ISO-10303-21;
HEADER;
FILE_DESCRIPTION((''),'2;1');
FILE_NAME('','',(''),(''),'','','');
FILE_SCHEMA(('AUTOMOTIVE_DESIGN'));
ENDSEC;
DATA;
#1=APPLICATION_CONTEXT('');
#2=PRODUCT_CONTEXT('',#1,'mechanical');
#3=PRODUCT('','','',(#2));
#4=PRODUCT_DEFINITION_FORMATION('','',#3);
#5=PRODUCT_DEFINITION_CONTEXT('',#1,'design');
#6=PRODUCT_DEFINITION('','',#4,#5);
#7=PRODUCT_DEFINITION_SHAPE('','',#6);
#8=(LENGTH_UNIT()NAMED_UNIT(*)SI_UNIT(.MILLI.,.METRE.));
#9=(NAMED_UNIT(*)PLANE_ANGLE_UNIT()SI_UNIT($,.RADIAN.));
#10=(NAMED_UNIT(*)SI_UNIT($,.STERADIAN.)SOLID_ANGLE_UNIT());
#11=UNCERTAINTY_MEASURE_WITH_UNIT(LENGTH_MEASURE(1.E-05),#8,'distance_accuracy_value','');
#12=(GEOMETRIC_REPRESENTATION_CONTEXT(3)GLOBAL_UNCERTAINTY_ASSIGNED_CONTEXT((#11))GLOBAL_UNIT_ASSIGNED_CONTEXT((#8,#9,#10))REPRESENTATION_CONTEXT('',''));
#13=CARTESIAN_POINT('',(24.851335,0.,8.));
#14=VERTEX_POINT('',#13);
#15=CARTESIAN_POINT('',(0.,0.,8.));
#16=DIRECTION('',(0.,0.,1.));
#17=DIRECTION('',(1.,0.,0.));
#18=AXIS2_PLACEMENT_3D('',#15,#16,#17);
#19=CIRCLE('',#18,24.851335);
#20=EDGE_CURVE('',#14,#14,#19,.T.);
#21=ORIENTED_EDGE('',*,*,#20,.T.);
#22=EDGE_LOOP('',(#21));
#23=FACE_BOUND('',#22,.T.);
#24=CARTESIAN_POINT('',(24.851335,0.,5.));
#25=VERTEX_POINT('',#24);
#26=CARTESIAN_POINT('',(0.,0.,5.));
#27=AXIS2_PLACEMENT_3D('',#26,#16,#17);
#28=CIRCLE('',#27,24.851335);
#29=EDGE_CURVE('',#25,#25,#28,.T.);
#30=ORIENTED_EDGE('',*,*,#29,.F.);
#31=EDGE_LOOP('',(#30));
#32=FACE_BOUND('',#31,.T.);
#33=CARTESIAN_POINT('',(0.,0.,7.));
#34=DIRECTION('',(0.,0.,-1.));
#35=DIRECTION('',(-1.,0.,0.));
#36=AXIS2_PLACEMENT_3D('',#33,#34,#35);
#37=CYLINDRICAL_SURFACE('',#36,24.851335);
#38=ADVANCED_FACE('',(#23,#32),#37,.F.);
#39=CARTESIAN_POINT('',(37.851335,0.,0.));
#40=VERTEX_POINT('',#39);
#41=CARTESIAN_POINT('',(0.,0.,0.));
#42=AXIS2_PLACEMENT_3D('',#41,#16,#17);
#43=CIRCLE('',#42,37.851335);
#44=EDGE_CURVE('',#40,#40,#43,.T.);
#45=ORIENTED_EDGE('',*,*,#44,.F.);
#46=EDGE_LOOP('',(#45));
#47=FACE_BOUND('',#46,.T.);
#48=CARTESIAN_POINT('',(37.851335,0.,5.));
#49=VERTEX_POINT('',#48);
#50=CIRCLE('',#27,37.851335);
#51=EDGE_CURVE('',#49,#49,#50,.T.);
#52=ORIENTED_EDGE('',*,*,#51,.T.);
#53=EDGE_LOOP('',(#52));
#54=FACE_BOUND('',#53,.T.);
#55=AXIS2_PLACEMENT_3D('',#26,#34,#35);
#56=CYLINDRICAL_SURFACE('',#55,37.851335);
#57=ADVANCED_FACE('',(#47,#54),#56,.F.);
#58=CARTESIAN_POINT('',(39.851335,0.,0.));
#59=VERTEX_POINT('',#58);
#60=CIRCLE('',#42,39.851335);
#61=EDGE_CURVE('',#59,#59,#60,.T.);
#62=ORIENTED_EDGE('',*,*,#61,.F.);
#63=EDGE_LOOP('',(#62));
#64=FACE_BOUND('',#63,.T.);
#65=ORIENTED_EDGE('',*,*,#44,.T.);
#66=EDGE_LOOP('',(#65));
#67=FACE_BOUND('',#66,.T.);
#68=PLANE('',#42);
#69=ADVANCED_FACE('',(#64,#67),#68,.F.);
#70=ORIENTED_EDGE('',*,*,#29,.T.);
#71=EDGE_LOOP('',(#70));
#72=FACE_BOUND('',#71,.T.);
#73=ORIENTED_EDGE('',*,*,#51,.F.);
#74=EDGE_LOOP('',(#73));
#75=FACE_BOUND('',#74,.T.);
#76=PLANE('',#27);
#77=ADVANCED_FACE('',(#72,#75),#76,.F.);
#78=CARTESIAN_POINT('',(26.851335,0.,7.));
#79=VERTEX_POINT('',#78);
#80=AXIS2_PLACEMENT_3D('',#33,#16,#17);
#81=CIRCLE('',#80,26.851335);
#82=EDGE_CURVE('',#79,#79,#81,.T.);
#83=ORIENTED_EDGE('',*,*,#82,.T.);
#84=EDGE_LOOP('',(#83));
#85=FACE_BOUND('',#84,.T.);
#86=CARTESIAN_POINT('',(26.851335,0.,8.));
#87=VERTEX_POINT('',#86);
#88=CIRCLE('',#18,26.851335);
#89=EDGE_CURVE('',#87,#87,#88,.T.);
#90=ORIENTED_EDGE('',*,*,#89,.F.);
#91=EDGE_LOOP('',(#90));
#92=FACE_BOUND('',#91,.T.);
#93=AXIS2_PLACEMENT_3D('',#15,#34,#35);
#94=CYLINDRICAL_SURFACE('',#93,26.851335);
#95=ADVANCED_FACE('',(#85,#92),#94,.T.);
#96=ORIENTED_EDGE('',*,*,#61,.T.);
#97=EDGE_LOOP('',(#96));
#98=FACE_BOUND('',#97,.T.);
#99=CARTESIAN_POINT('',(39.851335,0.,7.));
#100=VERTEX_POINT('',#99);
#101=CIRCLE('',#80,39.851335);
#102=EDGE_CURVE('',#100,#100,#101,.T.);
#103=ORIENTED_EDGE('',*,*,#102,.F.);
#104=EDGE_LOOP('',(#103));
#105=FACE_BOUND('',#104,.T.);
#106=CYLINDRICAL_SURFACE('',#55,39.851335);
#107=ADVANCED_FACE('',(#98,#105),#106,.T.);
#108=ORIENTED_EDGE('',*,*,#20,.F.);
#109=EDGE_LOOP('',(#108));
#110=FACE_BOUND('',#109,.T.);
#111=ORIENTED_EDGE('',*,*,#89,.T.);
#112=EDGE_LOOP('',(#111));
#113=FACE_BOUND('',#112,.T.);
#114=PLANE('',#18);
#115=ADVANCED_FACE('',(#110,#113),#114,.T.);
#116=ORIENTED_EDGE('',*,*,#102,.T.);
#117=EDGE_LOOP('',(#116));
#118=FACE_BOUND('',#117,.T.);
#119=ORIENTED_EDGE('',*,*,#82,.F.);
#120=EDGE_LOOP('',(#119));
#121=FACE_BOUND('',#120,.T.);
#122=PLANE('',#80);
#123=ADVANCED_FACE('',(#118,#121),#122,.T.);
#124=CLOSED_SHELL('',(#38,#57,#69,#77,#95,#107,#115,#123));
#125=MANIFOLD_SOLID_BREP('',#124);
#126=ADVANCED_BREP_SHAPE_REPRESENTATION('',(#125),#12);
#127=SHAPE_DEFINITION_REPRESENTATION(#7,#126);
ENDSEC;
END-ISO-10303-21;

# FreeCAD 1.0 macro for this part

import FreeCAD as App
import Part
import Sketcher

V = App.Vector
Q = App.Units.Quantity

doc = App.newDocument("Part")
params = doc.addObject("Spreadsheet::Sheet", "Params")
for row, (alias, value) in enumerate([
    ("pad1_length", "5 mm"),
    ("pad2_length", "2 mm"),
    ("pad3_length", "1 mm"),
], start=1):
    params.set(f"A{row}", alias)
    params.set(f"B{row}", "=" + value)
    params.setAlias(f"B{row}", alias)

body = doc.addObject("PartDesign::Body", "Body")

# Sketch on XY plane
sketch1 = body.newObject("Sketcher::SketchObject", "Sketch")
sketch1.AttachmentSupport = (doc.getObject("XY_Plane"), [""])
sketch1.MapMode = "FlatFace"
sketch1.addGeometry([
    Part.Circle(V(0, 0, 0), V(0, 0, 1), 40),
    Part.Circle(V(0, 0, 0), V(0, 0, 1), 38),
], False)
sketch1.addConstraint([
    Sketcher.Constraint("Coincident", 0, 3, -1, 1),
    Sketcher.Constraint("Coincident", 1, 3, -1, 1),
    Sketcher.Constraint("Diameter", 0, Q("79.702671 mm")),
    Sketcher.Constraint("Diameter", 1, Q("75.702671 mm")),
])
pad1 = body.newObject("PartDesign::Pad", "Pad")
pad1.Profile = sketch1
pad1.setExpression("Length", "Params.pad1_length")

# Sketch on XY plane
sketch2 = body.newObject("Sketcher::SketchObject", "Sketch001")
sketch2.AttachmentSupport = (doc.getObject("XY_Plane"), [""])
sketch2.MapMode = "FlatFace"
sketch2.AttachmentOffset = App.Placement(V(0, 0, 5), App.Rotation())
sketch2.addGeometry([
    Part.Circle(V(0, 0, 0), V(0, 0, 1), 40),
    Part.Circle(V(0, 0, 0), V(0, 0, 1), 25),
], False)
sketch2.addConstraint([
    Sketcher.Constraint("Coincident", 0, 3, -1, 1),
    Sketcher.Constraint("Coincident", 1, 3, -1, 1),
    Sketcher.Constraint("Diameter", 0, Q("79.702671 mm")),
    Sketcher.Constraint("Diameter", 1, Q("49.702671 mm")),
])
pad2 = body.newObject("PartDesign::Pad", "Pad001")
pad2.Profile = sketch2
pad2.setExpression("Length", "Params.pad2_length")

# Sketch on XY plane
sketch3 = body.newObject("Sketcher::SketchObject", "Sketch002")
sketch3.AttachmentSupport = (doc.getObject("XY_Plane"), [""])
sketch3.MapMode = "FlatFace"
sketch3.AttachmentOffset = App.Placement(V(0, 0, 7), App.Rotation())
sketch3.addGeometry([
    Part.Circle(V(0, 0, 0), V(0, 0, 1), 27),
    Part.Circle(V(0, 0, 0), V(0, 0, 1), 25),
], False)
sketch3.addConstraint([
    Sketcher.Constraint("Coincident", 0, 3, -1, 1),
    Sketcher.Constraint("Coincident", 1, 3, -1, 1),
    Sketcher.Constraint("Diameter", 0, Q("53.702671 mm")),
    Sketcher.Constraint("Diameter", 1, Q("49.702671 mm")),
])
pad3 = body.newObject("PartDesign::Pad", "Pad002")
pad3.Profile = sketch3
pad3.setExpression("Length", "Params.pad3_length")

doc.recompute()
